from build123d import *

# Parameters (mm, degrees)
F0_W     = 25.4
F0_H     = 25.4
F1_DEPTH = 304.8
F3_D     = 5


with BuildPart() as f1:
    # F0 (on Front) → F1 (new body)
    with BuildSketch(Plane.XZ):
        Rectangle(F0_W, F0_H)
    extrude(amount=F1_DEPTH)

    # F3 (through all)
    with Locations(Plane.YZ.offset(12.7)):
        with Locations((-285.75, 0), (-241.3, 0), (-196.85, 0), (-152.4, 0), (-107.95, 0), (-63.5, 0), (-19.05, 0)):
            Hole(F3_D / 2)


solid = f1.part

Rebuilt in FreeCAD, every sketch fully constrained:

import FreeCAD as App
import Part
import Sketcher
Q = App.Units.Quantity


def add_polygon(sketch, points):
    """Adds a closed chain of lines whose ends are joined by coincident constraints."""
    first, n = sketch.GeometryCount, len(points)
    for a, b in zip(points, points[1:] + points[:1]):
        sketch.addGeometry(Part.LineSegment(App.Vector(*a, 0), App.Vector(*b, 0)), False)
    for i in range(n):
        sketch.addConstraint(Sketcher.Constraint("Coincident", first + i, 2, first + (i + 1) % n, 1))

doc = App.newDocument("Part")
body = doc.addObject("PartDesign::Body", "Body")

# Sketch on XZ plane
sketch1 = doc.addObject("Sketcher::SketchObject", "Sketch")
body.addObject(sketch1)
sketch1.AttachmentSupport = (doc.XZ_Plane, [""])
sketch1.MapMode = "FlatFace"
add_polygon(sketch1, [(-13, 13), (-13, -13), (13, -13), (13, 13)])  # lines 0-3
sketch1.addConstraint([
    Sketcher.Constraint("Vertical", 0),
    Sketcher.Constraint("Horizontal", 1),
    Sketcher.Constraint("Vertical", 2),
    Sketcher.Constraint("Horizontal", 3),
    Sketcher.Constraint("Symmetric", 0, 2, 2, 2, -1, 1),
    Sketcher.Constraint("Equal", 3, 0),
    Sketcher.Constraint("DistanceX", 1, 1, 1, 2, Q("1 in")),
])
pad1 = doc.addObject("PartDesign::Pad", "Pad")
body.addObject(pad1)
pad1.Profile = sketch1
pad1.Length = Q("12 in")

# Sketch on YZ plane
sketch2 = doc.addObject("Sketcher::SketchObject", "Sketch001")
body.addObject(sketch2)
sketch2.AttachmentSupport = (doc.YZ_Plane, [""])
sketch2.MapMode = "FlatFace"
sketch2.AttachmentOffset = App.Placement(App.Vector(0, 0, 0.5 * 25.4), App.Rotation())
sketch2.addGeometry([
    Part.Circle(App.Vector(-285.8, 0, 0), App.Vector(0, 0, 1), 2.5),  # 0
    Part.Circle(App.Vector(-241.3, 0, 0), App.Vector(0, 0, 1), 2.5),  # 1
    Part.Circle(App.Vector(-196.8, 0, 0), App.Vector(0, 0, 1), 2.5),  # 2
    Part.Circle(App.Vector(-152.4, 0, 0), App.Vector(0, 0, 1), 2.5),  # 3
    Part.Circle(App.Vector(-108, 0, 0), App.Vector(0, 0, 1), 2.5),  # 4
    Part.Circle(App.Vector(-63.5, 0, 0), App.Vector(0, 0, 1), 2.5),  # 5
    Part.Circle(App.Vector(-19.1, 0, 0), App.Vector(0, 0, 1), 2.5),  # 6
], False)
sketch2.addConstraint([
    Sketcher.Constraint("Equal", 0, 1),
    Sketcher.Constraint("Equal", 1, 2),
    Sketcher.Constraint("Equal", 2, 3),
    Sketcher.Constraint("Equal", 3, 4),
    Sketcher.Constraint("Equal", 4, 5),
    Sketcher.Constraint("Equal", 5, 6),
    Sketcher.Constraint("PointOnObject", 0, 3, -1),
    Sketcher.Constraint("PointOnObject", 1, 3, -1),
    Sketcher.Constraint("PointOnObject", 2, 3, -1),
    Sketcher.Constraint("PointOnObject", 3, 3, -1),
    Sketcher.Constraint("PointOnObject", 4, 3, -1),
    Sketcher.Constraint("PointOnObject", 5, 3, -1),
    Sketcher.Constraint("PointOnObject", 6, 3, -1),
    Sketcher.Constraint("DistanceX", 3, 3, -1, 1, Q("6 in")),
    Sketcher.Constraint("DistanceX", 0, 3, 4, 3, Q("7 in")),
    Sketcher.Constraint("DistanceX", 1, 3, 5, 3, Q("7 in")),
    Sketcher.Constraint("DistanceX", 2, 3, 6, 3, Q("7 in")),
    Sketcher.Constraint("DistanceX", 1, 3, -1, 1, Q("9.5 in")),
    Sketcher.Constraint("DistanceX", 0, 3, 2, 3, Q("3.5 in")),
    Sketcher.Constraint("Diameter", 0, Q("5 mm")),
    Sketcher.Constraint("DistanceX", 0, 3, -1, 1, Q("11.25 in")),
])
doc.recompute()
hole = doc.addObject("PartDesign::Hole", "Hole")
body.addObject(hole)
hole.Profile = sketch2
hole.ThreadType = "None"
hole.Diameter = 5
hole.DepthType = "ThroughAll"

doc.recompute()
